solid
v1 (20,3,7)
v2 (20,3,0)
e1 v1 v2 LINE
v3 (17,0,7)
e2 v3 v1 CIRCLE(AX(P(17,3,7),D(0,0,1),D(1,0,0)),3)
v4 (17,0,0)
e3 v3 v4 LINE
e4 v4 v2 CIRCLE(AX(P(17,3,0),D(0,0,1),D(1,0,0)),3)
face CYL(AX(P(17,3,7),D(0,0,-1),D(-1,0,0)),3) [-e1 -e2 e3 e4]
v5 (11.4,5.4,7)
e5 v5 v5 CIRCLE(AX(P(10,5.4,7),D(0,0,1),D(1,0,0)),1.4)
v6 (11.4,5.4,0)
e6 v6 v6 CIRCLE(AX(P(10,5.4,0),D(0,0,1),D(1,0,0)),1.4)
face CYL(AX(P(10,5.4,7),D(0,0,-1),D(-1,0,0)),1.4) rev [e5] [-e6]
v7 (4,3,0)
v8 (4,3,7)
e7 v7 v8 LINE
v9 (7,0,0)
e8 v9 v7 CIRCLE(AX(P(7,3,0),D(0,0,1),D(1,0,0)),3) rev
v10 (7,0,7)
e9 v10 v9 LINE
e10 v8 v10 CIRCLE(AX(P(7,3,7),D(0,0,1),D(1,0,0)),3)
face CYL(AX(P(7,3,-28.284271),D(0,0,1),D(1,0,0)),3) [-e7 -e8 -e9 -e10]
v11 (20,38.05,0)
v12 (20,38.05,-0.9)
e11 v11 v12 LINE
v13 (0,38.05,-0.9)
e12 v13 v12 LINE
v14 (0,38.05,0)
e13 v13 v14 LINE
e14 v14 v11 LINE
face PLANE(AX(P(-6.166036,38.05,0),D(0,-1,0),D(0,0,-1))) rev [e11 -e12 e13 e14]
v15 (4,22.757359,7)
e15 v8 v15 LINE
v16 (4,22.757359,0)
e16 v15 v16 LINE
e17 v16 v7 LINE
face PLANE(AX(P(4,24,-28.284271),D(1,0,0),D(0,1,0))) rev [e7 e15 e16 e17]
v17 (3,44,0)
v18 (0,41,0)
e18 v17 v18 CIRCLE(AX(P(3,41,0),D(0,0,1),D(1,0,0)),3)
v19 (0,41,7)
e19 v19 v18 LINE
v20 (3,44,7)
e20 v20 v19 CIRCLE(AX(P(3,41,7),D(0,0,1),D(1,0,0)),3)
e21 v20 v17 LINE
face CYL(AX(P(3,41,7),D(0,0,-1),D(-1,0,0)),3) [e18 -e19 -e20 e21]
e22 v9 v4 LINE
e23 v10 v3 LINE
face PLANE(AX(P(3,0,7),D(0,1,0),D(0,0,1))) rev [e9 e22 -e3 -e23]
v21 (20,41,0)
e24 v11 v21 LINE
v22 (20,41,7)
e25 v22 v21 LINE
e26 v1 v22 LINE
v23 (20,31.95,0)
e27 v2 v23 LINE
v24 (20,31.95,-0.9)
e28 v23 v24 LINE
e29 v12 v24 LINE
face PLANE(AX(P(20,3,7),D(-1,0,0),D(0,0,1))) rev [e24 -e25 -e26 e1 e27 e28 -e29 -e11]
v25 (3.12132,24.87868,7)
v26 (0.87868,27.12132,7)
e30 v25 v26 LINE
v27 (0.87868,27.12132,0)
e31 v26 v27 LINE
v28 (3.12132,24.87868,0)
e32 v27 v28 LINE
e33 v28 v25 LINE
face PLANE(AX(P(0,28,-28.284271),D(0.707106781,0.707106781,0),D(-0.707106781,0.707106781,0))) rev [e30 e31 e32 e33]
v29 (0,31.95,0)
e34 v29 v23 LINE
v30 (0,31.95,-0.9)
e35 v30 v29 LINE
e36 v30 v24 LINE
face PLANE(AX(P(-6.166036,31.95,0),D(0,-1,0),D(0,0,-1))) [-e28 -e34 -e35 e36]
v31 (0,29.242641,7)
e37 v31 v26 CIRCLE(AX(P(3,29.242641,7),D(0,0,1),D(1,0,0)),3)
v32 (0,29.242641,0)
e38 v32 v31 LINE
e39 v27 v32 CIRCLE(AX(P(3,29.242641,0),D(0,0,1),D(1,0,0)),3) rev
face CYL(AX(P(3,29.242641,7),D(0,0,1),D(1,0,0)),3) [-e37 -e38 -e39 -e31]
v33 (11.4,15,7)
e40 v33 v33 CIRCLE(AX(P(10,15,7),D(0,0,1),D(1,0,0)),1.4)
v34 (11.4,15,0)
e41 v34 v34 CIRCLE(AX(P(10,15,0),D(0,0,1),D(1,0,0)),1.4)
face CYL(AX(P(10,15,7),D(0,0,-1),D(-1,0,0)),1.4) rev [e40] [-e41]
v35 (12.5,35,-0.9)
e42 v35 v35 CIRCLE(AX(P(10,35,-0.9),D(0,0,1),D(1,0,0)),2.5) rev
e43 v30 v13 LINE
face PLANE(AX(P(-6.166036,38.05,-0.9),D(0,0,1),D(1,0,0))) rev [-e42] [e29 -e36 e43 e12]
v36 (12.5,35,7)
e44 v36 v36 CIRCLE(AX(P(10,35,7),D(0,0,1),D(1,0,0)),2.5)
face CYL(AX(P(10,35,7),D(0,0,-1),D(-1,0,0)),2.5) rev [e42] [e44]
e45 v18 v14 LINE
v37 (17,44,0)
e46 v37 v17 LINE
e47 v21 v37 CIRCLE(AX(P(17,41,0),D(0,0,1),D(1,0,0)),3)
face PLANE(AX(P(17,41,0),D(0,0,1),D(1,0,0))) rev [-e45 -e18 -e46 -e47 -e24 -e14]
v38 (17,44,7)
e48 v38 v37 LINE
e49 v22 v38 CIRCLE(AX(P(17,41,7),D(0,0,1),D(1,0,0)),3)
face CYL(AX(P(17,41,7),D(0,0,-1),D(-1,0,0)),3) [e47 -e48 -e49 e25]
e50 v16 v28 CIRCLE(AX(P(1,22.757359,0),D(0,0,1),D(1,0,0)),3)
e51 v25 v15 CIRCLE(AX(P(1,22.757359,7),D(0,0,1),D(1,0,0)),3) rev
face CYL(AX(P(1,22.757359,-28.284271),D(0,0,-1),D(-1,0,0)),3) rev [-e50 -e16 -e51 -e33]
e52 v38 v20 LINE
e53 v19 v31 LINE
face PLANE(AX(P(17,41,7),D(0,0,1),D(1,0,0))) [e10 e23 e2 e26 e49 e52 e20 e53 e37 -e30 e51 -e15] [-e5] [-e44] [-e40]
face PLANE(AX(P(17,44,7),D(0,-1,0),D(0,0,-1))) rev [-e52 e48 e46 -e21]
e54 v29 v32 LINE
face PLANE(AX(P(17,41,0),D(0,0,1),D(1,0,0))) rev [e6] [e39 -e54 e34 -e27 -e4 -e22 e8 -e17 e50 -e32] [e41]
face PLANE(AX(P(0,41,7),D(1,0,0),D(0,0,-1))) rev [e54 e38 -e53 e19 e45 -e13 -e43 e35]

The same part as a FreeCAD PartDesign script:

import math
import FreeCAD as App
import Part
import Sketcher

V = App.Vector


def edges_at(feature, points):
    """Names of the edges that pass closest to the given points."""
    edges = feature.Shape.Edges
    near = lambda p: min(range(len(edges)), key=lambda i: edges[i].distToShape(Part.Vertex(*p))[0])
    return sorted({f"Edge{near(p) + 1}" for p in points})

doc = App.newDocument("Part")
body = doc.addObject("PartDesign::Body", "Body")

# Sketch on XY plane
sketch1 = body.newObject("Sketcher::SketchObject", "Sketch")
sketch1.AttachmentSupport = (doc.getObject("XY_Plane"), [""])
sketch1.MapMode = "FlatFace"
sketch1.addGeometry([
    Part.LineSegment(V(3, 0, 0), V(17, 0, 0)),  # 0
    Part.ArcOfCircle(Part.Circle(V(17, 3, 0), V(0, 0, 1), 3), math.radians(-90), math.radians(0)),  # 1
    Part.LineSegment(V(20, 3, 0), V(20, 41, 0)),  # 2
    Part.ArcOfCircle(Part.Circle(V(17, 41, 0), V(0, 0, 1), 3), math.radians(0), math.radians(90)),  # 3
    Part.LineSegment(V(17, 44, 0), V(3, 44, 0)),  # 4
    Part.ArcOfCircle(Part.Circle(V(3, 41, 0), V(0, 0, 1), 3), math.radians(90), math.radians(180)),  # 5
    Part.LineSegment(V(0, 41, 0), V(0, 3, 0)),  # 6
    Part.ArcOfCircle(Part.Circle(V(3, 3, 0), V(0, 0, 1), 3), math.radians(180), math.radians(270)),  # 7
    Part.Circle(V(10, 5.4, 0), V(0, 0, 1), 1.4),  # 8
    Part.Circle(V(10, 15, 0), V(0, 0, 1), 1.4),  # 9
    Part.Circle(V(10, 35, 0), V(0, 0, 1), 2.5),  # 10
], False)
sketch1.addConstraint([
    Sketcher.Constraint("Tangent", 0, 2, 1, 1),
    Sketcher.Constraint("Tangent", 1, 2, 2, 1),
    Sketcher.Constraint("Tangent", 2, 2, 3, 1),
    Sketcher.Constraint("Tangent", 3, 2, 4, 1),
    Sketcher.Constraint("Tangent", 4, 2, 5, 1),
    Sketcher.Constraint("Tangent", 5, 2, 6, 1),
    Sketcher.Constraint("Tangent", 6, 2, 7, 1),
    Sketcher.Constraint("Tangent", 7, 2, 0, 1),
    Sketcher.Constraint("Horizontal", 0),
    Sketcher.Constraint("Vertical", 2),
    Sketcher.Constraint("Horizontal", 4),
    Sketcher.Constraint("Vertical", 6),
    Sketcher.Constraint("Equal", 1, 3),
    Sketcher.Constraint("Equal", 3, 5),
    Sketcher.Constraint("Equal", 5, 7),
    Sketcher.Constraint("Equal", 8, 9),
    Sketcher.Constraint("PointOnObject", 0, 2, -1),
    Sketcher.Constraint("PointOnObject", 5, 2, -2),
    Sketcher.Constraint("Vertical", 8, 3, 9, 3),
    Sketcher.Constraint("Vertical", 9, 3, 10, 3),
    Sketcher.Constraint("Diameter", 10, 5.0),
    Sketcher.Constraint("Radius", 1, 3.0),
    Sketcher.Constraint("Diameter", 8, 2.8),
    Sketcher.Constraint("DistanceX", 0, 1, 0, 2, 14.0),
    Sketcher.Constraint("DistanceY", 2, 1, 2, 2, 38.0),
    Sketcher.Constraint("DistanceX", -1, 1, 8, 3, 10.0),
    Sketcher.Constraint("DistanceY", -1, 1, 9, 3, 15.0),
    Sketcher.Constraint("DistanceY", -1, 1, 10, 3, 35.0),
    Sketcher.Constraint("DistanceY", -1, 1, 8, 3, 5.4),
])
pad1 = body.newObject("PartDesign::Pad", "Pad")
pad1.Profile = sketch1
pad1.Length = 7

# Sketch on YZ plane
sketch2 = body.newObject("Sketcher::SketchObject", "Sketch001")
sketch2.AttachmentSupport = (doc.getObject("YZ_Plane"), [""])
sketch2.MapMode = "FlatFace"
sketch2.AttachmentOffset = App.Placement(V(0, 0, 20), App.Rotation())
sketch2.addGeometry([
    Part.LineSegment(V(38, 0, 0), V(31.9, 0, 0)),
    Part.LineSegment(V(31.9, 0, 0), V(31.9, -0.9, 0)),
    Part.LineSegment(V(31.9, -0.9, 0), V(38, -0.9, 0)),
    Part.LineSegment(V(38, -0.9, 0), V(38, 0, 0)),
], False)
sketch2.addConstraint([
    Sketcher.Constraint("Coincident", 0, 2, 1, 1),
    Sketcher.Constraint("Coincident", 1, 2, 2, 1),
    Sketcher.Constraint("Coincident", 2, 2, 3, 1),
    Sketcher.Constraint("Coincident", 3, 2, 0, 1),
    Sketcher.Constraint("Horizontal", 0),
    Sketcher.Constraint("Vertical", 1),
    Sketcher.Constraint("Horizontal", 2),
    Sketcher.Constraint("Vertical", 3),
    Sketcher.Constraint("PointOnObject", 0, 2, -1),
    Sketcher.Constraint("DistanceX", 0, 2, 0, 1, 6.1),
    Sketcher.Constraint("DistanceY", 1, 2, 1, 1, 0.9),
    Sketcher.Constraint("DistanceX", -1, 1, 0, 2, 31.95),
])
pad2 = body.newObject("PartDesign::Pad", "Pad001")
pad2.Profile = sketch2
pad2.Length = 20
pad2.Reversed = True

# Sketch on XY plane
sketch3 = body.newObject("Sketcher::SketchObject", "Sketch002")
sketch3.AttachmentSupport = (doc.getObject("XY_Plane"), [""])
sketch3.MapMode = "FlatFace"
sketch3.addGeometry(Part.Circle(V(10, 35, 0), V(0, 0, 1), 2.5), False)
sketch3.addConstraint([
    Sketcher.Constraint("Diameter", 0, 5.0),
    Sketcher.Constraint("DistanceX", -1, 1, 0, 3, 10.0),
    Sketcher.Constraint("DistanceY", -1, 1, 0, 3, 35.0),
])
pocket1 = body.newObject("PartDesign::Pocket", "Pocket")
pocket1.Profile = sketch3
pocket1.Type = "UpToFirst"

# Sketch on XY plane
sketch4 = body.newObject("Sketcher::SketchObject", "Sketch003")
sketch4.AttachmentSupport = (doc.getObject("XY_Plane"), [""])
sketch4.MapMode = "FlatFace"
sketch4.addGeometry([
    Part.LineSegment(V(4, 24, 0), V(0, 28, 0)),  # 0
    Part.LineSegment(V(0, 28, 0), V(0, 3, 0)),  # 1
    Part.ArcOfCircle(Part.Circle(V(3, 3, 0), V(0, 0, 1), 3), math.radians(180), math.radians(270)),  # 2
    Part.LineSegment(V(3, 0, 0), V(4, 0, 0)),  # 3
    Part.LineSegment(V(4, 0, 0), V(4, 24, 0)),  # 4
], False)
sketch4.addConstraint([
    Sketcher.Constraint("Coincident", 0, 2, 1, 1),
    Sketcher.Constraint("Tangent", 1, 2, 2, 1),
    Sketcher.Constraint("Tangent", 2, 2, 3, 1),
    Sketcher.Constraint("Coincident", 3, 2, 4, 1),
    Sketcher.Constraint("Coincident", 4, 2, 0, 1),
    Sketcher.Constraint("Vertical", 1),
    Sketcher.Constraint("Horizontal", 3),
    Sketcher.Constraint("Vertical", 4),
    Sketcher.Constraint("PointOnObject", 0, 2, -2),
    Sketcher.Constraint("PointOnObject", 2, 2, -1),
    Sketcher.Constraint("Radius", 2, 3.0),
    Sketcher.Constraint("DistanceX", 3, 1, 3, 2, 1.0),
    Sketcher.Constraint("DistanceY", 1, 2, 1, 1, 25.0),
    Sketcher.Constraint("DistanceY", 4, 1, 4, 2, 24.0),
])
pocket2 = body.newObject("PartDesign::Pocket", "Pocket001")
pocket2.Profile = sketch4
pocket2.Length = 7
pocket2.Reversed = True
doc.recompute()

fillet = body.newObject("PartDesign::Fillet", "Fillet")
fillet.Base = (pocket2, edges_at(pocket2, [(0, 28, 3.5), (4, 24, 3.5), (4, 0, 3.5)]))
fillet.Radius = 3

doc.recompute()
